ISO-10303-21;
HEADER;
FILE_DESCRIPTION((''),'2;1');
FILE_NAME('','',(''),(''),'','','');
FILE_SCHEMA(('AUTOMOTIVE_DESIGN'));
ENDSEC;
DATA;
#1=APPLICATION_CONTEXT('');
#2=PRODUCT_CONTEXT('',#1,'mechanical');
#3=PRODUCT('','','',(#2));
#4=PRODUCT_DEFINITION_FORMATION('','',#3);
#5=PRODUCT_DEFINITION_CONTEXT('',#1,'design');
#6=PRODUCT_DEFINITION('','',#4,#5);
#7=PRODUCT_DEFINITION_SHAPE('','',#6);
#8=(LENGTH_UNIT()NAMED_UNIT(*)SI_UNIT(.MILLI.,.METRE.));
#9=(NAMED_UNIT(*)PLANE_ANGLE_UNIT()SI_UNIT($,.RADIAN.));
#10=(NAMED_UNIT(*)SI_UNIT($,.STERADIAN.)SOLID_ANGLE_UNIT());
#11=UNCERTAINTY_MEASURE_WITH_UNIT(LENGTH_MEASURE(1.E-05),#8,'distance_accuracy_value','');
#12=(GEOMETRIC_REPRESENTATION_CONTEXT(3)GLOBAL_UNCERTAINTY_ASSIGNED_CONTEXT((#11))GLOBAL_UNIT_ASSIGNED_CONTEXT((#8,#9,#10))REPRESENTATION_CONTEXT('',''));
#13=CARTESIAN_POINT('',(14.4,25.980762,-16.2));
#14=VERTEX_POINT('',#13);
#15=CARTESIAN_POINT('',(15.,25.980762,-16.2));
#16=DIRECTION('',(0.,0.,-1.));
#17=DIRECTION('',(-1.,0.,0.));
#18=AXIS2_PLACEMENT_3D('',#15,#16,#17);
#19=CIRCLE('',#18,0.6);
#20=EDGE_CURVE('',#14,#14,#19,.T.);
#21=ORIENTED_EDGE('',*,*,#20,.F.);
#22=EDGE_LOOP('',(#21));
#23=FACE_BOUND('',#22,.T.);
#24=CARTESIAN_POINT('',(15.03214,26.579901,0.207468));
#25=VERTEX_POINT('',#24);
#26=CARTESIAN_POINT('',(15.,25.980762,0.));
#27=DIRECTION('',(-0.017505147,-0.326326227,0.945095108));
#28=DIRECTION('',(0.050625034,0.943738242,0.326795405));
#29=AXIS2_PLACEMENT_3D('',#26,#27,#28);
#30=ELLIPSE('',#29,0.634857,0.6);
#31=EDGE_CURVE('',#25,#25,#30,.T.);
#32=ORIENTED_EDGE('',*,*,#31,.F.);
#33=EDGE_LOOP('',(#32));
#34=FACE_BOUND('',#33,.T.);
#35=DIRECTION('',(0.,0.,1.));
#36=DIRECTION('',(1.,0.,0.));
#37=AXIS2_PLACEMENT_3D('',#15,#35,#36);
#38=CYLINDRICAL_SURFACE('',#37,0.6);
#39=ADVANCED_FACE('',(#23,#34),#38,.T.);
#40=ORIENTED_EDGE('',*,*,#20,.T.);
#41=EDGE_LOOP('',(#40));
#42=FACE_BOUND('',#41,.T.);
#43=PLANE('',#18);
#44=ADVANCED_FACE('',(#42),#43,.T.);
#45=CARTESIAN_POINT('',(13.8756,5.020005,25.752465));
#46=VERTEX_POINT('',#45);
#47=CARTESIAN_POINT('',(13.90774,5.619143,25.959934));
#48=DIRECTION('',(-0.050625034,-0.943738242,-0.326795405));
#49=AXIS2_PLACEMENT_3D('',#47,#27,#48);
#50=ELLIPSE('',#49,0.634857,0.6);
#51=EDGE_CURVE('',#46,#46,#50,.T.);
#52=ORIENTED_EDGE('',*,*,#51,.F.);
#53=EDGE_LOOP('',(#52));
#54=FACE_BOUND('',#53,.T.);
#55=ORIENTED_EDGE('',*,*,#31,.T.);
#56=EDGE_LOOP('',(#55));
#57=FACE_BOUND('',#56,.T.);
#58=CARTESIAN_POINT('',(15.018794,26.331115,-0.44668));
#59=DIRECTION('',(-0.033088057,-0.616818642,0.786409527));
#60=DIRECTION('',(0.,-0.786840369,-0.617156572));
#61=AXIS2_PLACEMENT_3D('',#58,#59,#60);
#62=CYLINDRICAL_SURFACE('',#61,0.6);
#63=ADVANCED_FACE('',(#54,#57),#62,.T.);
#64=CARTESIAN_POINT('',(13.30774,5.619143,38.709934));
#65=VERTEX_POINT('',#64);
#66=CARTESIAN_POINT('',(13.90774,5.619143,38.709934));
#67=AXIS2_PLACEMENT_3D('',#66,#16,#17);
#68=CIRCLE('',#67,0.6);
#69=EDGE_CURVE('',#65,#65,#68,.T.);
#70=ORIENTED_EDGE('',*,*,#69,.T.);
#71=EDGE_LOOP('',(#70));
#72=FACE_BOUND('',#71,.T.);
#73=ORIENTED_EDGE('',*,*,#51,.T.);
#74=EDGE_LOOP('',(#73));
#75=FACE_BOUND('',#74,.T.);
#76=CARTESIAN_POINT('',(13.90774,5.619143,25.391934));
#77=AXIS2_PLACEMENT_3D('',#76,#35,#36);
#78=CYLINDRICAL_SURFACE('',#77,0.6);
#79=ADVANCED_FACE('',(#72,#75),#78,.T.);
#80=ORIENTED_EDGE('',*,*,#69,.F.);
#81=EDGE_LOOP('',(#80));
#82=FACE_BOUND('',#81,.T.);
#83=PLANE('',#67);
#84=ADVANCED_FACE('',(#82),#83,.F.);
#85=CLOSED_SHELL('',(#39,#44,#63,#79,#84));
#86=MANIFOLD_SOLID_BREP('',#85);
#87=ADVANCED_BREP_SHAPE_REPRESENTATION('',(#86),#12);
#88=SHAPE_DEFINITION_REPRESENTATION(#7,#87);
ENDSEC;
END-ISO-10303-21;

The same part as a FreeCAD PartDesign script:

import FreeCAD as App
import Part
import Sketcher

V = App.Vector

doc = App.newDocument("Part")
body = doc.addObject("PartDesign::Body", "Body")

# Sketch on XY plane
sketch1 = body.newObject("Sketcher::SketchObject", "Sketch")
sketch1.AttachmentSupport = (doc.getObject("XY_Plane"), [""])
sketch1.MapMode = "FlatFace"
sketch1.AttachmentOffset = App.Placement(V(0, 0, -16.2), App.Rotation())
sketch1.addGeometry(Part.Circle(V(15, 25.980762, 0), V(0, 0, 1), 0.6), False)
sketch1.addConstraint(Sketcher.Constraint("Diameter", 0, 1.2))
sketch1.addConstraint(Sketcher.Constraint("DistanceX", -1, 1, 0, 3, 15.0))
sketch1.addConstraint(Sketcher.Constraint("DistanceY", -1, 1, 0, 3, 25.980762))

# Sketch on an angled plane
sketch2 = body.newObject("Sketcher::SketchObject", "Sketch001")
sketch2.Placement = App.Placement(V(13.567271, -0.72779, 0), App.Rotation(V(0.053566073, 0.998564307, 0), V(0, 0, 0.999999999), V(0.998564307, -0.053566073, 0), "ZXY"))
sketch2.addGeometry(Part.LineSegment(V(26.746953, -16.2, 0), V(26.746953, 0, 0)), False)
sketch2.addGeometry(Part.LineSegment(V(26.746953, 0, 0), V(6.356059, 25.959934, 0)), False)
sketch2.addGeometry(Part.LineSegment(V(6.356059, 25.959934, 0), V(6.356059, 38.709934, 0)), False)
sketch2.addConstraint(Sketcher.Constraint("Coincident", 0, 2, 1, 1))
sketch2.addConstraint(Sketcher.Constraint("Coincident", 1, 2, 2, 1))
sketch2.addConstraint(Sketcher.Constraint("Vertical", 0))
sketch2.addConstraint(Sketcher.Constraint("Vertical", 2))
sketch2.addConstraint(Sketcher.Constraint("PointOnObject", 0, 2, -1))
sketch2.addConstraint(Sketcher.Constraint("DistanceY", 0, 1, 0, 2, 16.2))
sketch2.addConstraint(Sketcher.Constraint("DistanceY", 2, 1, 2, 2, 12.75))
sketch2.addConstraint(Sketcher.Constraint("DistanceX", -1, 1, 1, 2, 6.356059))
sketch2.addConstraint(Sketcher.Constraint("Distance", 1, 33.010706))
sketch2.addConstraint(Sketcher.Constraint("DistanceX", -1, 1, 0, 1, 26.746953))
doc.recompute()

additivepipe = body.newObject("PartDesign::AdditivePipe", "AdditivePipe")
additivepipe.Profile = sketch1
additivepipe.Spine = (sketch2, ["Edge1", "Edge2", "Edge3"])
additivepipe.Transition = "Right corner"

doc.recompute()
